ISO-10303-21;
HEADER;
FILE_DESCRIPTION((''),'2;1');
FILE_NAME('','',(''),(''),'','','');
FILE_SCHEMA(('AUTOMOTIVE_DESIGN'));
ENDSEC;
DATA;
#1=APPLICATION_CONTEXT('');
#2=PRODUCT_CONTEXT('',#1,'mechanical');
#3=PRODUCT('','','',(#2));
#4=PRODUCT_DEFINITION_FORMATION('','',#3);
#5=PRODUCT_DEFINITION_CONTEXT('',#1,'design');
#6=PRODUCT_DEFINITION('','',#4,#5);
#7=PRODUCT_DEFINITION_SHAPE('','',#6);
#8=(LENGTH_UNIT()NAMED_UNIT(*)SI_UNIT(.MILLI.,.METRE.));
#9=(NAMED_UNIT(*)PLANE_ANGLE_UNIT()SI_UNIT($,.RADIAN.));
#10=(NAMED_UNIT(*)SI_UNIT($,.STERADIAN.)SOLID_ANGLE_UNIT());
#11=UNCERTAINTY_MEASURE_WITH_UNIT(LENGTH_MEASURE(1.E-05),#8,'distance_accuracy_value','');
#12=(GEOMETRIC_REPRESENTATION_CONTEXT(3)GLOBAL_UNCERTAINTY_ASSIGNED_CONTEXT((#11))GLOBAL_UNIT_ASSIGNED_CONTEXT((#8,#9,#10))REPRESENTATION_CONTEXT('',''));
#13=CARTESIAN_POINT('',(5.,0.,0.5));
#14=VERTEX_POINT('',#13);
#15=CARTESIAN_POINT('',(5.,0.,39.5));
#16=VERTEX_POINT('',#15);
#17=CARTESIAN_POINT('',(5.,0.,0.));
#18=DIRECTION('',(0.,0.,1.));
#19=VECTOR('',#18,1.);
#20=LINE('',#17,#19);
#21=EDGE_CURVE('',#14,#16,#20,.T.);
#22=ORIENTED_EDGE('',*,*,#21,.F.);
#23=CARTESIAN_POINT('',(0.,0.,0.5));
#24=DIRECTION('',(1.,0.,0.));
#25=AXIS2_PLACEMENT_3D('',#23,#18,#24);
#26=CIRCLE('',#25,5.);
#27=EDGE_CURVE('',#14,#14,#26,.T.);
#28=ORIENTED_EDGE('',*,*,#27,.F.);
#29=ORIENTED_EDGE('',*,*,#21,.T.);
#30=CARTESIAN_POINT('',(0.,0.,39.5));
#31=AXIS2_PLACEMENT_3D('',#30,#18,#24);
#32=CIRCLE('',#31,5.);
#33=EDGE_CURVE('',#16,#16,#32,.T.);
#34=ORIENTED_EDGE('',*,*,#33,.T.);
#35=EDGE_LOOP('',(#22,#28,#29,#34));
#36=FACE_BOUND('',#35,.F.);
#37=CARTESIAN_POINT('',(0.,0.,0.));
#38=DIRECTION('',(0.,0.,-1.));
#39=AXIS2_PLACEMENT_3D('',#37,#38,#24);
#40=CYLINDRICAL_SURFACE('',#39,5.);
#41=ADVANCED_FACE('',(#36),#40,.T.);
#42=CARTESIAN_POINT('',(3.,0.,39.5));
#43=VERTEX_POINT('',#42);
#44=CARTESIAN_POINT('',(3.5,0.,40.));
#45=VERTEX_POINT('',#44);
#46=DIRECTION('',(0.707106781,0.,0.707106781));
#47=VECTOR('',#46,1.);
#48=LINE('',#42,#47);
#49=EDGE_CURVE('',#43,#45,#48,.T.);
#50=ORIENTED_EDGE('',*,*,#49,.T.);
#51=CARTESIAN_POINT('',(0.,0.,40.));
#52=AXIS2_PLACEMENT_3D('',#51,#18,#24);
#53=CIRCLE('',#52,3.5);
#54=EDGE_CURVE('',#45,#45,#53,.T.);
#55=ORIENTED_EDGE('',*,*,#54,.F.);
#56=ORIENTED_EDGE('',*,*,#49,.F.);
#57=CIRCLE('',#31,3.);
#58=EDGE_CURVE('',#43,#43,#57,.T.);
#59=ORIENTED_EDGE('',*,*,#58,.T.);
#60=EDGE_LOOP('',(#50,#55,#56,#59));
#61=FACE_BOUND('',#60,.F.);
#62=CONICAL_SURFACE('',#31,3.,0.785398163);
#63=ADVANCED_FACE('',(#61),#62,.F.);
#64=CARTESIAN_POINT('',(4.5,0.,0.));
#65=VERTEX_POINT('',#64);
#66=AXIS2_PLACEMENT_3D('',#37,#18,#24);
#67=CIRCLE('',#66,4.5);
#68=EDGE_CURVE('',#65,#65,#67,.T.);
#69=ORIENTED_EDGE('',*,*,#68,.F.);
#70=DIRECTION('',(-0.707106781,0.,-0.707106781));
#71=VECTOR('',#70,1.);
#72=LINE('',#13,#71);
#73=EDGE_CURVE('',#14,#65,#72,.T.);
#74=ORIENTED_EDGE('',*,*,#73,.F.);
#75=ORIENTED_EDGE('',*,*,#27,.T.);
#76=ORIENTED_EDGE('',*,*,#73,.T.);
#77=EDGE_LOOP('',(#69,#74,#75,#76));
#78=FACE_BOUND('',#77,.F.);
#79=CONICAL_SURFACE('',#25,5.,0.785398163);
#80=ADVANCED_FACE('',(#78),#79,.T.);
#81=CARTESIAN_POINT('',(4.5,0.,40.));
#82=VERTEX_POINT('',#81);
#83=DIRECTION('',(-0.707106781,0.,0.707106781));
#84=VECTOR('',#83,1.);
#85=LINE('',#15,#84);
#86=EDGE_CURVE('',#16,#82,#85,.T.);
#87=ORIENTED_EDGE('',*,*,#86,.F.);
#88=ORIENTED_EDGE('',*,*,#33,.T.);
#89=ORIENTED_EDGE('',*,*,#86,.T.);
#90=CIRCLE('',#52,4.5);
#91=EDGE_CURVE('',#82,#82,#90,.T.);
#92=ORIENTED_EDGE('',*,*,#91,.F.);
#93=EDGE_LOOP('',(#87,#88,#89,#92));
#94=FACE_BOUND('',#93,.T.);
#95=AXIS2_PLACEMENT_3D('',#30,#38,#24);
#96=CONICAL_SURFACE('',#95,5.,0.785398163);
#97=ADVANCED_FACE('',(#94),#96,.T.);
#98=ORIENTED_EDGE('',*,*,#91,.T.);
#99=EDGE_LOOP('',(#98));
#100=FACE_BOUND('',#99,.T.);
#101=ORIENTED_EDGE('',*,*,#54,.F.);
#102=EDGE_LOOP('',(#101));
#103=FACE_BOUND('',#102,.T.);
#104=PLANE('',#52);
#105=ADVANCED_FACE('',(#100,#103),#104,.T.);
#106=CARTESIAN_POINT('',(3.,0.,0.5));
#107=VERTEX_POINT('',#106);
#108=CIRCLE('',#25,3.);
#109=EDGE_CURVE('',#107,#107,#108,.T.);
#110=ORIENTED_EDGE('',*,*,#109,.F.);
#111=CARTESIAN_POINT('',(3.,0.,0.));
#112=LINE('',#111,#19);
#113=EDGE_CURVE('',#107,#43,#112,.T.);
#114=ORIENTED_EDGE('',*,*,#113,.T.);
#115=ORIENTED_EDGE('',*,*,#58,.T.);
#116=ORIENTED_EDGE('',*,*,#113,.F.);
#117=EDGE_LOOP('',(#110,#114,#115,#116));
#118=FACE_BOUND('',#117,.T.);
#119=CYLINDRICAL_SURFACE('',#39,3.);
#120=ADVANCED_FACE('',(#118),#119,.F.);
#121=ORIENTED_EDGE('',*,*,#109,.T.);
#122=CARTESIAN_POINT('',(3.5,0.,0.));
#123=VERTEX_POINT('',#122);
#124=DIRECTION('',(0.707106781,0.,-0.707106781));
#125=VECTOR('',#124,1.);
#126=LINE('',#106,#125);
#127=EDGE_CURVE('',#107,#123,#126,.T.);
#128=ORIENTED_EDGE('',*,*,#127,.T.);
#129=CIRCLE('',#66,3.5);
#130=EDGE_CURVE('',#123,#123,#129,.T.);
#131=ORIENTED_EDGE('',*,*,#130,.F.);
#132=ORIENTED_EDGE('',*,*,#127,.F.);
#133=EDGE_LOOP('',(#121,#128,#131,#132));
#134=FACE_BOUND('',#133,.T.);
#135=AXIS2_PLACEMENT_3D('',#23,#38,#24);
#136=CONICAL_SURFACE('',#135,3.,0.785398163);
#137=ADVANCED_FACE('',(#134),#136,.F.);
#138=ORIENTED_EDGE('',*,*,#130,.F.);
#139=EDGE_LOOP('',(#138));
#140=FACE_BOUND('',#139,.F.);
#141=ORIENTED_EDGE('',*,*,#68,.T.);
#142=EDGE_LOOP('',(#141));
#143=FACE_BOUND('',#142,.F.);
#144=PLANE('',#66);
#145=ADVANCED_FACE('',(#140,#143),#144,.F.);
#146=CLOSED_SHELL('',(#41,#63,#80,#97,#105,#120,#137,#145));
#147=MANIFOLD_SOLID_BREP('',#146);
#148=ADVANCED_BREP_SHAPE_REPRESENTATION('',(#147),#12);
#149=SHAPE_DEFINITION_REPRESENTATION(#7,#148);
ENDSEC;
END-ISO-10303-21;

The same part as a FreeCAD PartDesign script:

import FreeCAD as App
import Part
import Sketcher

V = App.Vector


def edges_at(feature, points):
    """Names of the edges that pass closest to the given points."""
    edges = feature.Shape.Edges
    near = lambda p: min(range(len(edges)), key=lambda i: edges[i].distToShape(Part.Vertex(*p))[0])
    return sorted({f"Edge{near(p) + 1}" for p in points})

doc = App.newDocument("Part")
body = doc.addObject("PartDesign::Body", "Body")

sketch1 = body.newObject("Sketcher::SketchObject", "Sketch")
sketch1.AttachmentSupport = (doc.getObject("XY_Plane"), [""])
sketch1.MapMode = "FlatFace"
sketch1.addGeometry(Part.Circle(V(0, 0, 0), V(0, 0, 1), 5), False)
sketch1.addGeometry(Part.Circle(V(0, 0, 0), V(0, 0, 1), 3), False)
sketch1.addConstraint(Sketcher.Constraint("Coincident", 0, 3, -1, 1))
sketch1.addConstraint(Sketcher.Constraint("Coincident", 1, 3, -1, 1))
sketch1.addConstraint(Sketcher.Constraint("Diameter", 0, 10.0))
sketch1.addConstraint(Sketcher.Constraint("Diameter", 1, 6.0))
pad1 = body.newObject("PartDesign::Pad", "Pad")
pad1.Profile = sketch1
pad1.Length = 40
doc.recompute()

chamfer = body.newObject("PartDesign::Chamfer", "Chamfer")
chamfer.Base = (pad1, edges_at(pad1, [
    (-5, 0, 40),
    (-3, 0, 40),
    (-5, 0, 0),
    (-3, 0, 0),
]))
chamfer.Size = 0.5

doc.recompute()
